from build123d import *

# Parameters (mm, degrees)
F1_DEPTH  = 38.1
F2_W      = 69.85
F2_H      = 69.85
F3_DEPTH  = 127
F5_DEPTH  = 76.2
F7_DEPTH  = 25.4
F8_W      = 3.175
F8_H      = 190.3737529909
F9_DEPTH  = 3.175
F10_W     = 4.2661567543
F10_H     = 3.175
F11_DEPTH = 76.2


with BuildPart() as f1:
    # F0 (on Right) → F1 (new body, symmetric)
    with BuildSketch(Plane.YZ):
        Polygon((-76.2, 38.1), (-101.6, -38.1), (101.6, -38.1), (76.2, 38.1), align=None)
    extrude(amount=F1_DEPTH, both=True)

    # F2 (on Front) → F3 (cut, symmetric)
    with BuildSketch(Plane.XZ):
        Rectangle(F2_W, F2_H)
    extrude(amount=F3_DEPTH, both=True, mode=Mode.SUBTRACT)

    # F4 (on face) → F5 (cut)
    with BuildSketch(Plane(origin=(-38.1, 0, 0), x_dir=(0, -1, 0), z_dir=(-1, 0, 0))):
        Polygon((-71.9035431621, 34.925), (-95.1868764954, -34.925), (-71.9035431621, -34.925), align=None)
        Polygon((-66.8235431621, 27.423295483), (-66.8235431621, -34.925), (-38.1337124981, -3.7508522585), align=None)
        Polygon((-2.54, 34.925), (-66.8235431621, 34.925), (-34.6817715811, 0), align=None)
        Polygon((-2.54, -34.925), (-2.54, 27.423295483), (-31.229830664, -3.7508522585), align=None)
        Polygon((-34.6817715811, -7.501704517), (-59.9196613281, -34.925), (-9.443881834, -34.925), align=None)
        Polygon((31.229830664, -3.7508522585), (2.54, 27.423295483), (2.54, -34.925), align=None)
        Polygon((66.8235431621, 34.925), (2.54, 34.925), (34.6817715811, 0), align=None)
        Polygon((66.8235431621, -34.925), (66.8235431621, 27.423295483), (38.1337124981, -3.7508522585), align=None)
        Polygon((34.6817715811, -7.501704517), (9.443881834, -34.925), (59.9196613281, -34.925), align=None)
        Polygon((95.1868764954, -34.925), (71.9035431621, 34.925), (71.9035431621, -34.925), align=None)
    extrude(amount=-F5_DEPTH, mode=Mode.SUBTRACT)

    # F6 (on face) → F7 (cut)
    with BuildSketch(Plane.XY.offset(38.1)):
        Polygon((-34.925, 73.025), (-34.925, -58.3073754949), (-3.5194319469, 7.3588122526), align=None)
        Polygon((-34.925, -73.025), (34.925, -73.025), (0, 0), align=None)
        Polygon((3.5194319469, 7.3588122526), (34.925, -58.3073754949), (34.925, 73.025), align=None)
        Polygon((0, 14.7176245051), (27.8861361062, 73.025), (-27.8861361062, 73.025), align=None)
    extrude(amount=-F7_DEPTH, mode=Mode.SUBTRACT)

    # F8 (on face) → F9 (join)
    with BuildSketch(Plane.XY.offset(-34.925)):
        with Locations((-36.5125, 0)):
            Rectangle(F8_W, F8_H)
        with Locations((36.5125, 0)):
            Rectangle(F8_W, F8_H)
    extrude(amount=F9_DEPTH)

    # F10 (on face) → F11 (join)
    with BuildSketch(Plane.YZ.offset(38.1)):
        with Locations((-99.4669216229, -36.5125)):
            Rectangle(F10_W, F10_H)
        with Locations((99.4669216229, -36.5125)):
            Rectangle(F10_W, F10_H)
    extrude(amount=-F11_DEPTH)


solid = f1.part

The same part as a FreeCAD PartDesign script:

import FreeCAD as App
import Part
import Sketcher

V = App.Vector
Q = App.Units.Quantity

doc = App.newDocument("Part")
body = doc.addObject("PartDesign::Body", "Body")

# Sketch on YZ plane
sketch1 = body.newObject("Sketcher::SketchObject", "Sketch")
sketch1.AttachmentSupport = (doc.getObject("YZ_Plane"), [""])
sketch1.MapMode = "FlatFace"
sketch1.addGeometry([
    Part.LineSegment(V(-76, 38, 0), V(-102, -38, 0)),
    Part.LineSegment(V(-102, -38, 0), V(102, -38, 0)),
    Part.LineSegment(V(102, -38, 0), V(76, 38, 0)),
    Part.LineSegment(V(76, 38, 0), V(-76, 38, 0)),
], False)
sketch1.addConstraint([
    Sketcher.Constraint("Coincident", 0, 2, 1, 1),
    Sketcher.Constraint("Coincident", 1, 2, 2, 1),
    Sketcher.Constraint("Coincident", 2, 2, 3, 1),
    Sketcher.Constraint("Coincident", 3, 2, 0, 1),
    Sketcher.Constraint("Horizontal", 1),
    Sketcher.Constraint("Horizontal", 3),
    Sketcher.Constraint("Equal", 0, 2),
    Sketcher.Constraint("DistanceX", 1, 1, 1, 2, Q("8 in")),
    Sketcher.Constraint("DistanceX", 3, 2, 3, 1, Q("6 in")),
    Sketcher.Constraint("DistanceX", 0, 2, -1, 1, Q("4 in")),
    Sketcher.Constraint("DistanceY", 1, 2, 2, 2, Q("3 in")),
    Sketcher.Constraint("DistanceY", 0, 2, -1, 1, Q("1.5 in")),
])
pad1 = body.newObject("PartDesign::Pad", "Pad")
pad1.Profile = sketch1
pad1.Length = Q("3 in")
pad1.Midplane = True

# Sketch on XZ plane
sketch2 = body.newObject("Sketcher::SketchObject", "Sketch001")
sketch2.AttachmentSupport = (doc.getObject("XZ_Plane"), [""])
sketch2.MapMode = "FlatFace"
sketch2.addGeometry([
    Part.LineSegment(V(-35, 35, 0), V(-35, -35, 0)),
    Part.LineSegment(V(-35, -35, 0), V(35, -35, 0)),
    Part.LineSegment(V(35, -35, 0), V(35, 35, 0)),
    Part.LineSegment(V(35, 35, 0), V(-35, 35, 0)),
], False)
sketch2.addConstraint([
    Sketcher.Constraint("Coincident", 0, 2, 1, 1),
    Sketcher.Constraint("Coincident", 1, 2, 2, 1),
    Sketcher.Constraint("Coincident", 2, 2, 3, 1),
    Sketcher.Constraint("Coincident", 3, 2, 0, 1),
    Sketcher.Constraint("Vertical", 0),
    Sketcher.Constraint("Horizontal", 1),
    Sketcher.Constraint("Vertical", 2),
    Sketcher.Constraint("Horizontal", 3),
    Sketcher.Constraint("Symmetric", 0, 2, 2, 2, -1, 1),
    Sketcher.Constraint("Equal", 3, 0),
    Sketcher.Constraint("DistanceX", 1, 1, 1, 2, Q("2.75 in")),
])
pocket1 = body.newObject("PartDesign::Pocket", "Pocket")
pocket1.Profile = sketch2
pocket1.Length = Q("10 in")
pocket1.Midplane = True

# Sketch on YZ plane
sketch3 = body.newObject("Sketcher::SketchObject", "Sketch002")
sketch3.AttachmentSupport = (doc.getObject("YZ_Plane"), [""])
sketch3.MapMode = "FlatFace"
sketch3.AttachmentOffset = App.Placement(V(0, 0, -1.5 * 25.4), App.Rotation())
sketch3.addGeometry([
    Part.LineSegment(V(72, 35, 0), V(95, -35, 0)),  # 0
    Part.LineSegment(V(95, -35, 0), V(72, -35, 0)),  # 1
    Part.LineSegment(V(72, -35, 0), V(72, 35, 0)),  # 2
    Part.LineSegment(V(67, 27, 0), V(67, -35, 0)),  # 3
    Part.LineSegment(V(67, -35, 0), V(38, -4, 0)),  # 4
    Part.LineSegment(V(38, -4, 0), V(67, 27, 0)),  # 5
    Part.LineSegment(V(3, 35, 0), V(67, 35, 0)),  # 6
    Part.LineSegment(V(67, 35, 0), V(35, 0, 0)),  # 7
    Part.LineSegment(V(35, 0, 0), V(3, 35, 0)),  # 8
    Part.LineSegment(V(3, -35, 0), V(3, 27, 0)),  # 9
    Part.LineSegment(V(3, 27, 0), V(31, -4, 0)),  # 10
    Part.LineSegment(V(31, -4, 0), V(3, -35, 0)),  # 11
    Part.LineSegment(V(35, -8, 0), V(60, -35, 0)),  # 12
    Part.LineSegment(V(60, -35, 0), V(9, -35, 0)),  # 13
    Part.LineSegment(V(9, -35, 0), V(35, -8, 0)),  # 14
    Part.LineSegment(V(-31, -4, 0), V(-3, 27, 0)),  # 15
    Part.LineSegment(V(-3, 27, 0), V(-3, -35, 0)),  # 16
    Part.LineSegment(V(-3, -35, 0), V(-31, -4, 0)),  # 17
    Part.LineSegment(V(-67, 35, 0), V(-3, 35, 0)),  # 18
    Part.LineSegment(V(-3, 35, 0), V(-35, 0, 0)),  # 19
    Part.LineSegment(V(-35, 0, 0), V(-67, 35, 0)),  # 20
    Part.LineSegment(V(-67, -35, 0), V(-67, 27, 0)),  # 21
    Part.LineSegment(V(-67, 27, 0), V(-38, -4, 0)),  # 22
    Part.LineSegment(V(-38, -4, 0), V(-67, -35, 0)),  # 23
    Part.LineSegment(V(-35, -8, 0), V(-9, -35, 0)),  # 24
    Part.LineSegment(V(-9, -35, 0), V(-60, -35, 0)),  # 25
    Part.LineSegment(V(-60, -35, 0), V(-35, -8, 0)),  # 26
    Part.LineSegment(V(-95, -35, 0), V(-72, 35, 0)),  # 27
    Part.LineSegment(V(-72, 35, 0), V(-72, -35, 0)),  # 28
    Part.LineSegment(V(-72, -35, 0), V(-95, -35, 0)),  # 29
], False)
sketch3.addConstraint([
    Sketcher.Constraint("Coincident", 0, 2, 1, 1),
    Sketcher.Constraint("Coincident", 1, 2, 2, 1),
    Sketcher.Constraint("Coincident", 2, 2, 0, 1),
    Sketcher.Constraint("Coincident", 3, 2, 4, 1),
    Sketcher.Constraint("Coincident", 4, 2, 5, 1),
    Sketcher.Constraint("Coincident", 5, 2, 3, 1),
    Sketcher.Constraint("Coincident", 6, 2, 7, 1),
    Sketcher.Constraint("Coincident", 7, 2, 8, 1),
    Sketcher.Constraint("Coincident", 8, 2, 6, 1),
    Sketcher.Constraint("Coincident", 9, 2, 10, 1),
    Sketcher.Constraint("Coincident", 10, 2, 11, 1),
    Sketcher.Constraint("Coincident", 11, 2, 9, 1),
    Sketcher.Constraint("Coincident", 12, 2, 13, 1),
    Sketcher.Constraint("Coincident", 13, 2, 14, 1),
    Sketcher.Constraint("Coincident", 14, 2, 12, 1),
    Sketcher.Constraint("Coincident", 15, 2, 16, 1),
    Sketcher.Constraint("Coincident", 16, 2, 17, 1),
    Sketcher.Constraint("Coincident", 17, 2, 15, 1),
    Sketcher.Constraint("Coincident", 18, 2, 19, 1),
    Sketcher.Constraint("Coincident", 19, 2, 20, 1),
    Sketcher.Constraint("Coincident", 20, 2, 18, 1),
    Sketcher.Constraint("Coincident", 21, 2, 22, 1),
    Sketcher.Constraint("Coincident", 22, 2, 23, 1),
    Sketcher.Constraint("Coincident", 23, 2, 21, 1),
    Sketcher.Constraint("Coincident", 24, 2, 25, 1),
    Sketcher.Constraint("Coincident", 25, 2, 26, 1),
    Sketcher.Constraint("Coincident", 26, 2, 24, 1),
    Sketcher.Constraint("Coincident", 27, 2, 28, 1),
    Sketcher.Constraint("Coincident", 28, 2, 29, 1),
    Sketcher.Constraint("Coincident", 29, 2, 27, 1),
    Sketcher.Constraint("Horizontal", 1),
    Sketcher.Constraint("Vertical", 2),
    Sketcher.Constraint("Vertical", 3),
    Sketcher.Constraint("Horizontal", 6),
    Sketcher.Constraint("Vertical", 9),
    Sketcher.Constraint("Horizontal", 13),
    Sketcher.Constraint("Vertical", 16),
    Sketcher.Constraint("Horizontal", 18),
    Sketcher.Constraint("Vertical", 21),
    Sketcher.Constraint("Horizontal", 25),
    Sketcher.Constraint("Vertical", 28),
    Sketcher.Constraint("Horizontal", 29),
    Sketcher.Constraint("Symmetric", 8, 2, 16, 2, -1, 1),
    Sketcher.Constraint("Symmetric", 11, 2, 18, 2, -1, 1),
    Sketcher.Constraint("Symmetric", 7, 2, 19, 2, -1, 1),
    Sketcher.Constraint("Symmetric", 3, 2, 20, 2, -1, 1),
    Sketcher.Constraint("Symmetric", 6, 2, 23, 2, -1, 1),
    Sketcher.Constraint("Symmetric", 1, 2, 27, 2, -1, 1),
    Sketcher.Constraint("Symmetric", 9, 2, 15, 2, -2),
    Sketcher.Constraint("Symmetric", 10, 2, 17, 2, -2),
    Sketcher.Constraint("Symmetric", 6, 2, 20, 2, -2),
    Sketcher.Constraint("Symmetric", 4, 2, 22, 2, -2),
    Sketcher.Constraint("Symmetric", 13, 2, 24, 2, -2),
    Sketcher.Constraint("Symmetric", 14, 2, 26, 2, -2),
    Sketcher.Constraint("Symmetric", 0, 2, 29, 2, -2),
    Sketcher.Constraint("PointOnObject", 7, 2, -1),
    Sketcher.Constraint("Parallel", 5, 7),
    Sketcher.Constraint("Parallel", 4, 8),
    Sketcher.Constraint("Parallel", 8, 10),
    Sketcher.Constraint("Parallel", 7, 11),
    Sketcher.Constraint("Parallel", 10, 12),
    Sketcher.Constraint("Parallel", 11, 14),
    Sketcher.Constraint("Parallel", 14, 15),
    Sketcher.Constraint("Parallel", 20, 22),
    Sketcher.Constraint("Parallel", 23, 26),
    Sketcher.Constraint("Horizontal", 1, 2, 3, 2),
    Sketcher.Constraint("Horizontal", 2, 2, 6, 2),
    Sketcher.Constraint("Horizontal", 5, 2, 9, 2),
    Sketcher.Constraint("Horizontal", 11, 2, 12, 2),
    Sketcher.Constraint("Vertical", 7, 2, 14, 2),
    Sketcher.Constraint("DistanceY", 2, 1, 2, 2, Q("2.75 in")),
    Sketcher.Constraint("DistanceX", -1, 1, 8, 2, Q("0.1 in")),
    Sketcher.Constraint("DistanceX", 3, 2, 1, 2, Q("0.2 in")),
    Sketcher.Constraint("DistanceY", 14, 2, 15, 2, Q("1.375 in")),
    Sketcher.Constraint("DistanceX", 13, 2, 13, 1, 50.475779),
    Sketcher.Constraint("DistanceX", 1, 2, 1, 1, 23.283333),
    Sketcher.Constraint("DistanceX", 6, 1, 6, 2, 64.283543),
])
pocket2 = body.newObject("PartDesign::Pocket", "Pocket001")
pocket2.Profile = sketch3
pocket2.Length = Q("3 in")
pocket2.Reversed = True

# Sketch on XY plane
sketch4 = body.newObject("Sketcher::SketchObject", "Sketch003")
sketch4.AttachmentSupport = (doc.getObject("XY_Plane"), [""])
sketch4.MapMode = "FlatFace"
sketch4.AttachmentOffset = App.Placement(V(0, 0, 1.5 * 25.4), App.Rotation())
sketch4.addGeometry([
    Part.LineSegment(V(-35, 73, 0), V(-35, -58, 0)),  # 0
    Part.LineSegment(V(-35, -58, 0), V(-4, 7, 0)),  # 1
    Part.LineSegment(V(-4, 7, 0), V(-35, 73, 0)),  # 2
    Part.LineSegment(V(-35, -73, 0), V(35, -73, 0)),  # 3
    Part.LineSegment(V(35, -73, 0), V(0, 0, 0)),  # 4
    Part.LineSegment(V(0, 0, 0), V(-35, -73, 0)),  # 5
    Part.LineSegment(V(4, 7, 0), V(35, -58, 0)),  # 6
    Part.LineSegment(V(35, -58, 0), V(35, 73, 0)),  # 7
    Part.LineSegment(V(35, 73, 0), V(4, 7, 0)),  # 8
    Part.LineSegment(V(0, 15, 0), V(28, 73, 0)),  # 9
    Part.LineSegment(V(28, 73, 0), V(-28, 73, 0)),  # 10
    Part.LineSegment(V(-28, 73, 0), V(0, 15, 0)),  # 11
], False)
sketch4.addConstraint([
    Sketcher.Constraint("Coincident", 0, 2, 1, 1),
    Sketcher.Constraint("Coincident", 1, 2, 2, 1),
    Sketcher.Constraint("Coincident", 2, 2, 0, 1),
    Sketcher.Constraint("Coincident", 3, 2, 4, 1),
    Sketcher.Constraint("Coincident", 4, 2, 5, 1),
    Sketcher.Constraint("Coincident", 5, 2, 3, 1),
    Sketcher.Constraint("Coincident", 6, 2, 7, 1),
    Sketcher.Constraint("Coincident", 7, 2, 8, 1),
    Sketcher.Constraint("Coincident", 8, 2, 6, 1),
    Sketcher.Constraint("Coincident", 9, 2, 10, 1),
    Sketcher.Constraint("Coincident", 10, 2, 11, 1),
    Sketcher.Constraint("Coincident", 11, 2, 9, 1),
    Sketcher.Constraint("Vertical", 0),
    Sketcher.Constraint("Horizontal", 3),
    Sketcher.Constraint("Vertical", 7),
    Sketcher.Constraint("Horizontal", 10),
    Sketcher.Constraint("Coincident", 4, 2, -1, 1),
    Sketcher.Constraint("Symmetric", 2, 2, 3, 2, -1, 1),
    Sketcher.Constraint("Symmetric", 5, 2, 7, 2, -1, 1),
    Sketcher.Constraint("Symmetric", 0, 2, 6, 2, -2),
    Sketcher.Constraint("Symmetric", 1, 2, 8, 2, -2),
    Sketcher.Constraint("PointOnObject", 11, 2, -2),
    Sketcher.Constraint("Parallel", 2, 4),
    Sketcher.Constraint("Parallel", 1, 5),
    Sketcher.Constraint("Parallel", 8, 9),
    Sketcher.Constraint("Parallel", 6, 11),
    Sketcher.Constraint("Horizontal", 7, 2, 9, 2),
    Sketcher.Constraint("DistanceX", 3, 1, 3, 2, Q("2.75 in")),
    Sketcher.Constraint("DistanceY", 3, 2, 2, 2, Q("5.75 in")),
    Sketcher.Constraint("Distance", 1, 72.78982),
    Sketcher.Constraint("DistanceX", 10, 2, 10, 1, 55.772272),
])
pocket3 = body.newObject("PartDesign::Pocket", "Pocket002")
pocket3.Profile = sketch4
pocket3.Length = Q("1 in")

# Sketch on XY plane
sketch5 = body.newObject("Sketcher::SketchObject", "Sketch004")
sketch5.AttachmentSupport = (doc.getObject("XY_Plane"), [""])
sketch5.MapMode = "FlatFace"
sketch5.AttachmentOffset = App.Placement(V(0, 0, -1.375 * 25.4), App.Rotation())
sketch5.addGeometry([
    Part.LineSegment(V(-38.1, 95.2, 0), V(-38.1, -95.2, 0)),  # 0
    Part.LineSegment(V(-38.1, -95.2, 0), V(-34.9, -95.2, 0)),  # 1
    Part.LineSegment(V(-34.9, -95.2, 0), V(-34.9, 95.2, 0)),  # 2
    Part.LineSegment(V(-34.9, 95.2, 0), V(-38.1, 95.2, 0)),  # 3
    Part.LineSegment(V(34.9, 95.2, 0), V(34.9, -95.2, 0)),  # 4
    Part.LineSegment(V(34.9, -95.2, 0), V(38.1, -95.2, 0)),  # 5
    Part.LineSegment(V(38.1, -95.2, 0), V(38.1, 95.2, 0)),  # 6
    Part.LineSegment(V(38.1, 95.2, 0), V(34.9, 95.2, 0)),  # 7
], False)
sketch5.addConstraint([
    Sketcher.Constraint("Coincident", 0, 2, 1, 1),
    Sketcher.Constraint("Coincident", 1, 2, 2, 1),
    Sketcher.Constraint("Coincident", 2, 2, 3, 1),
    Sketcher.Constraint("Coincident", 3, 2, 0, 1),
    Sketcher.Constraint("Coincident", 4, 2, 5, 1),
    Sketcher.Constraint("Coincident", 5, 2, 6, 1),
    Sketcher.Constraint("Coincident", 6, 2, 7, 1),
    Sketcher.Constraint("Coincident", 7, 2, 4, 1),
    Sketcher.Constraint("Vertical", 0),
    Sketcher.Constraint("Horizontal", 1),
    Sketcher.Constraint("Vertical", 2),
    Sketcher.Constraint("Horizontal", 3),
    Sketcher.Constraint("Vertical", 4),
    Sketcher.Constraint("Horizontal", 5),
    Sketcher.Constraint("Vertical", 6),
    Sketcher.Constraint("Horizontal", 7),
    Sketcher.Constraint("Symmetric", 2, 2, 4, 2, -1, 1),
    Sketcher.Constraint("Symmetric", 0, 2, 6, 2, -1, 1),
    Sketcher.Constraint("Horizontal", 1, 2, 4, 2),
    Sketcher.Constraint("DistanceX", 0, 2, 5, 2, Q("3 in")),
    Sketcher.Constraint("DistanceX", 1, 1, 1, 2, Q("0.125 in")),
    Sketcher.Constraint("DistanceY", 0, 2, 0, 1, 190.373753),
])
pad2 = body.newObject("PartDesign::Pad", "Pad001")
pad2.Profile = sketch5
pad2.Length = Q("0.125 in")

# Sketch on YZ plane
sketch6 = body.newObject("Sketcher::SketchObject", "Sketch005")
sketch6.AttachmentSupport = (doc.getObject("YZ_Plane"), [""])
sketch6.MapMode = "FlatFace"
sketch6.AttachmentOffset = App.Placement(V(0, 0, 1.5 * 25.4), App.Rotation())
sketch6.addGeometry([
    Part.LineSegment(V(-101.6, -34.9, 0), V(-101.6, -38.1, 0)),  # 0
    Part.LineSegment(V(-101.6, -38.1, 0), V(-97.3, -38.1, 0)),  # 1
    Part.LineSegment(V(-97.3, -38.1, 0), V(-97.3, -34.9, 0)),  # 2
    Part.LineSegment(V(-97.3, -34.9, 0), V(-101.6, -34.9, 0)),  # 3
    Part.LineSegment(V(97.3, -34.9, 0), V(97.3, -38.1, 0)),  # 4
    Part.LineSegment(V(97.3, -38.1, 0), V(101.6, -38.1, 0)),  # 5
    Part.LineSegment(V(101.6, -38.1, 0), V(101.6, -34.9, 0)),  # 6
    Part.LineSegment(V(101.6, -34.9, 0), V(97.3, -34.9, 0)),  # 7
], False)
sketch6.addConstraint([
    Sketcher.Constraint("Coincident", 0, 2, 1, 1),
    Sketcher.Constraint("Coincident", 1, 2, 2, 1),
    Sketcher.Constraint("Coincident", 2, 2, 3, 1),
    Sketcher.Constraint("Coincident", 3, 2, 0, 1),
    Sketcher.Constraint("Coincident", 4, 2, 5, 1),
    Sketcher.Constraint("Coincident", 5, 2, 6, 1),
    Sketcher.Constraint("Coincident", 6, 2, 7, 1),
    Sketcher.Constraint("Coincident", 7, 2, 4, 1),
    Sketcher.Constraint("Vertical", 0),
    Sketcher.Constraint("Horizontal", 1),
    Sketcher.Constraint("Vertical", 2),
    Sketcher.Constraint("Horizontal", 3),
    Sketcher.Constraint("Vertical", 4),
    Sketcher.Constraint("Horizontal", 5),
    Sketcher.Constraint("Vertical", 6),
    Sketcher.Constraint("Horizontal", 7),
    Sketcher.Constraint("Symmetric", 1, 2, 4, 2, -2),
    Sketcher.Constraint("Symmetric", 3, 2, 6, 2, -2),
    Sketcher.Constraint("DistanceX", 0, 2, -1, 1, Q("4 in")),
    Sketcher.Constraint("DistanceY", 0, 2, -1, 1, Q("1.5 in")),
    Sketcher.Constraint("DistanceY", 0, 2, 0, 1, Q("0.125 in")),
    Sketcher.Constraint("DistanceX", 1, 1, 1, 2, 4.266157),
])
pad3 = body.newObject("PartDesign::Pad", "Pad002")
pad3.Profile = sketch6
pad3.Length = Q("3 in")
pad3.Reversed = True

doc.recompute()
